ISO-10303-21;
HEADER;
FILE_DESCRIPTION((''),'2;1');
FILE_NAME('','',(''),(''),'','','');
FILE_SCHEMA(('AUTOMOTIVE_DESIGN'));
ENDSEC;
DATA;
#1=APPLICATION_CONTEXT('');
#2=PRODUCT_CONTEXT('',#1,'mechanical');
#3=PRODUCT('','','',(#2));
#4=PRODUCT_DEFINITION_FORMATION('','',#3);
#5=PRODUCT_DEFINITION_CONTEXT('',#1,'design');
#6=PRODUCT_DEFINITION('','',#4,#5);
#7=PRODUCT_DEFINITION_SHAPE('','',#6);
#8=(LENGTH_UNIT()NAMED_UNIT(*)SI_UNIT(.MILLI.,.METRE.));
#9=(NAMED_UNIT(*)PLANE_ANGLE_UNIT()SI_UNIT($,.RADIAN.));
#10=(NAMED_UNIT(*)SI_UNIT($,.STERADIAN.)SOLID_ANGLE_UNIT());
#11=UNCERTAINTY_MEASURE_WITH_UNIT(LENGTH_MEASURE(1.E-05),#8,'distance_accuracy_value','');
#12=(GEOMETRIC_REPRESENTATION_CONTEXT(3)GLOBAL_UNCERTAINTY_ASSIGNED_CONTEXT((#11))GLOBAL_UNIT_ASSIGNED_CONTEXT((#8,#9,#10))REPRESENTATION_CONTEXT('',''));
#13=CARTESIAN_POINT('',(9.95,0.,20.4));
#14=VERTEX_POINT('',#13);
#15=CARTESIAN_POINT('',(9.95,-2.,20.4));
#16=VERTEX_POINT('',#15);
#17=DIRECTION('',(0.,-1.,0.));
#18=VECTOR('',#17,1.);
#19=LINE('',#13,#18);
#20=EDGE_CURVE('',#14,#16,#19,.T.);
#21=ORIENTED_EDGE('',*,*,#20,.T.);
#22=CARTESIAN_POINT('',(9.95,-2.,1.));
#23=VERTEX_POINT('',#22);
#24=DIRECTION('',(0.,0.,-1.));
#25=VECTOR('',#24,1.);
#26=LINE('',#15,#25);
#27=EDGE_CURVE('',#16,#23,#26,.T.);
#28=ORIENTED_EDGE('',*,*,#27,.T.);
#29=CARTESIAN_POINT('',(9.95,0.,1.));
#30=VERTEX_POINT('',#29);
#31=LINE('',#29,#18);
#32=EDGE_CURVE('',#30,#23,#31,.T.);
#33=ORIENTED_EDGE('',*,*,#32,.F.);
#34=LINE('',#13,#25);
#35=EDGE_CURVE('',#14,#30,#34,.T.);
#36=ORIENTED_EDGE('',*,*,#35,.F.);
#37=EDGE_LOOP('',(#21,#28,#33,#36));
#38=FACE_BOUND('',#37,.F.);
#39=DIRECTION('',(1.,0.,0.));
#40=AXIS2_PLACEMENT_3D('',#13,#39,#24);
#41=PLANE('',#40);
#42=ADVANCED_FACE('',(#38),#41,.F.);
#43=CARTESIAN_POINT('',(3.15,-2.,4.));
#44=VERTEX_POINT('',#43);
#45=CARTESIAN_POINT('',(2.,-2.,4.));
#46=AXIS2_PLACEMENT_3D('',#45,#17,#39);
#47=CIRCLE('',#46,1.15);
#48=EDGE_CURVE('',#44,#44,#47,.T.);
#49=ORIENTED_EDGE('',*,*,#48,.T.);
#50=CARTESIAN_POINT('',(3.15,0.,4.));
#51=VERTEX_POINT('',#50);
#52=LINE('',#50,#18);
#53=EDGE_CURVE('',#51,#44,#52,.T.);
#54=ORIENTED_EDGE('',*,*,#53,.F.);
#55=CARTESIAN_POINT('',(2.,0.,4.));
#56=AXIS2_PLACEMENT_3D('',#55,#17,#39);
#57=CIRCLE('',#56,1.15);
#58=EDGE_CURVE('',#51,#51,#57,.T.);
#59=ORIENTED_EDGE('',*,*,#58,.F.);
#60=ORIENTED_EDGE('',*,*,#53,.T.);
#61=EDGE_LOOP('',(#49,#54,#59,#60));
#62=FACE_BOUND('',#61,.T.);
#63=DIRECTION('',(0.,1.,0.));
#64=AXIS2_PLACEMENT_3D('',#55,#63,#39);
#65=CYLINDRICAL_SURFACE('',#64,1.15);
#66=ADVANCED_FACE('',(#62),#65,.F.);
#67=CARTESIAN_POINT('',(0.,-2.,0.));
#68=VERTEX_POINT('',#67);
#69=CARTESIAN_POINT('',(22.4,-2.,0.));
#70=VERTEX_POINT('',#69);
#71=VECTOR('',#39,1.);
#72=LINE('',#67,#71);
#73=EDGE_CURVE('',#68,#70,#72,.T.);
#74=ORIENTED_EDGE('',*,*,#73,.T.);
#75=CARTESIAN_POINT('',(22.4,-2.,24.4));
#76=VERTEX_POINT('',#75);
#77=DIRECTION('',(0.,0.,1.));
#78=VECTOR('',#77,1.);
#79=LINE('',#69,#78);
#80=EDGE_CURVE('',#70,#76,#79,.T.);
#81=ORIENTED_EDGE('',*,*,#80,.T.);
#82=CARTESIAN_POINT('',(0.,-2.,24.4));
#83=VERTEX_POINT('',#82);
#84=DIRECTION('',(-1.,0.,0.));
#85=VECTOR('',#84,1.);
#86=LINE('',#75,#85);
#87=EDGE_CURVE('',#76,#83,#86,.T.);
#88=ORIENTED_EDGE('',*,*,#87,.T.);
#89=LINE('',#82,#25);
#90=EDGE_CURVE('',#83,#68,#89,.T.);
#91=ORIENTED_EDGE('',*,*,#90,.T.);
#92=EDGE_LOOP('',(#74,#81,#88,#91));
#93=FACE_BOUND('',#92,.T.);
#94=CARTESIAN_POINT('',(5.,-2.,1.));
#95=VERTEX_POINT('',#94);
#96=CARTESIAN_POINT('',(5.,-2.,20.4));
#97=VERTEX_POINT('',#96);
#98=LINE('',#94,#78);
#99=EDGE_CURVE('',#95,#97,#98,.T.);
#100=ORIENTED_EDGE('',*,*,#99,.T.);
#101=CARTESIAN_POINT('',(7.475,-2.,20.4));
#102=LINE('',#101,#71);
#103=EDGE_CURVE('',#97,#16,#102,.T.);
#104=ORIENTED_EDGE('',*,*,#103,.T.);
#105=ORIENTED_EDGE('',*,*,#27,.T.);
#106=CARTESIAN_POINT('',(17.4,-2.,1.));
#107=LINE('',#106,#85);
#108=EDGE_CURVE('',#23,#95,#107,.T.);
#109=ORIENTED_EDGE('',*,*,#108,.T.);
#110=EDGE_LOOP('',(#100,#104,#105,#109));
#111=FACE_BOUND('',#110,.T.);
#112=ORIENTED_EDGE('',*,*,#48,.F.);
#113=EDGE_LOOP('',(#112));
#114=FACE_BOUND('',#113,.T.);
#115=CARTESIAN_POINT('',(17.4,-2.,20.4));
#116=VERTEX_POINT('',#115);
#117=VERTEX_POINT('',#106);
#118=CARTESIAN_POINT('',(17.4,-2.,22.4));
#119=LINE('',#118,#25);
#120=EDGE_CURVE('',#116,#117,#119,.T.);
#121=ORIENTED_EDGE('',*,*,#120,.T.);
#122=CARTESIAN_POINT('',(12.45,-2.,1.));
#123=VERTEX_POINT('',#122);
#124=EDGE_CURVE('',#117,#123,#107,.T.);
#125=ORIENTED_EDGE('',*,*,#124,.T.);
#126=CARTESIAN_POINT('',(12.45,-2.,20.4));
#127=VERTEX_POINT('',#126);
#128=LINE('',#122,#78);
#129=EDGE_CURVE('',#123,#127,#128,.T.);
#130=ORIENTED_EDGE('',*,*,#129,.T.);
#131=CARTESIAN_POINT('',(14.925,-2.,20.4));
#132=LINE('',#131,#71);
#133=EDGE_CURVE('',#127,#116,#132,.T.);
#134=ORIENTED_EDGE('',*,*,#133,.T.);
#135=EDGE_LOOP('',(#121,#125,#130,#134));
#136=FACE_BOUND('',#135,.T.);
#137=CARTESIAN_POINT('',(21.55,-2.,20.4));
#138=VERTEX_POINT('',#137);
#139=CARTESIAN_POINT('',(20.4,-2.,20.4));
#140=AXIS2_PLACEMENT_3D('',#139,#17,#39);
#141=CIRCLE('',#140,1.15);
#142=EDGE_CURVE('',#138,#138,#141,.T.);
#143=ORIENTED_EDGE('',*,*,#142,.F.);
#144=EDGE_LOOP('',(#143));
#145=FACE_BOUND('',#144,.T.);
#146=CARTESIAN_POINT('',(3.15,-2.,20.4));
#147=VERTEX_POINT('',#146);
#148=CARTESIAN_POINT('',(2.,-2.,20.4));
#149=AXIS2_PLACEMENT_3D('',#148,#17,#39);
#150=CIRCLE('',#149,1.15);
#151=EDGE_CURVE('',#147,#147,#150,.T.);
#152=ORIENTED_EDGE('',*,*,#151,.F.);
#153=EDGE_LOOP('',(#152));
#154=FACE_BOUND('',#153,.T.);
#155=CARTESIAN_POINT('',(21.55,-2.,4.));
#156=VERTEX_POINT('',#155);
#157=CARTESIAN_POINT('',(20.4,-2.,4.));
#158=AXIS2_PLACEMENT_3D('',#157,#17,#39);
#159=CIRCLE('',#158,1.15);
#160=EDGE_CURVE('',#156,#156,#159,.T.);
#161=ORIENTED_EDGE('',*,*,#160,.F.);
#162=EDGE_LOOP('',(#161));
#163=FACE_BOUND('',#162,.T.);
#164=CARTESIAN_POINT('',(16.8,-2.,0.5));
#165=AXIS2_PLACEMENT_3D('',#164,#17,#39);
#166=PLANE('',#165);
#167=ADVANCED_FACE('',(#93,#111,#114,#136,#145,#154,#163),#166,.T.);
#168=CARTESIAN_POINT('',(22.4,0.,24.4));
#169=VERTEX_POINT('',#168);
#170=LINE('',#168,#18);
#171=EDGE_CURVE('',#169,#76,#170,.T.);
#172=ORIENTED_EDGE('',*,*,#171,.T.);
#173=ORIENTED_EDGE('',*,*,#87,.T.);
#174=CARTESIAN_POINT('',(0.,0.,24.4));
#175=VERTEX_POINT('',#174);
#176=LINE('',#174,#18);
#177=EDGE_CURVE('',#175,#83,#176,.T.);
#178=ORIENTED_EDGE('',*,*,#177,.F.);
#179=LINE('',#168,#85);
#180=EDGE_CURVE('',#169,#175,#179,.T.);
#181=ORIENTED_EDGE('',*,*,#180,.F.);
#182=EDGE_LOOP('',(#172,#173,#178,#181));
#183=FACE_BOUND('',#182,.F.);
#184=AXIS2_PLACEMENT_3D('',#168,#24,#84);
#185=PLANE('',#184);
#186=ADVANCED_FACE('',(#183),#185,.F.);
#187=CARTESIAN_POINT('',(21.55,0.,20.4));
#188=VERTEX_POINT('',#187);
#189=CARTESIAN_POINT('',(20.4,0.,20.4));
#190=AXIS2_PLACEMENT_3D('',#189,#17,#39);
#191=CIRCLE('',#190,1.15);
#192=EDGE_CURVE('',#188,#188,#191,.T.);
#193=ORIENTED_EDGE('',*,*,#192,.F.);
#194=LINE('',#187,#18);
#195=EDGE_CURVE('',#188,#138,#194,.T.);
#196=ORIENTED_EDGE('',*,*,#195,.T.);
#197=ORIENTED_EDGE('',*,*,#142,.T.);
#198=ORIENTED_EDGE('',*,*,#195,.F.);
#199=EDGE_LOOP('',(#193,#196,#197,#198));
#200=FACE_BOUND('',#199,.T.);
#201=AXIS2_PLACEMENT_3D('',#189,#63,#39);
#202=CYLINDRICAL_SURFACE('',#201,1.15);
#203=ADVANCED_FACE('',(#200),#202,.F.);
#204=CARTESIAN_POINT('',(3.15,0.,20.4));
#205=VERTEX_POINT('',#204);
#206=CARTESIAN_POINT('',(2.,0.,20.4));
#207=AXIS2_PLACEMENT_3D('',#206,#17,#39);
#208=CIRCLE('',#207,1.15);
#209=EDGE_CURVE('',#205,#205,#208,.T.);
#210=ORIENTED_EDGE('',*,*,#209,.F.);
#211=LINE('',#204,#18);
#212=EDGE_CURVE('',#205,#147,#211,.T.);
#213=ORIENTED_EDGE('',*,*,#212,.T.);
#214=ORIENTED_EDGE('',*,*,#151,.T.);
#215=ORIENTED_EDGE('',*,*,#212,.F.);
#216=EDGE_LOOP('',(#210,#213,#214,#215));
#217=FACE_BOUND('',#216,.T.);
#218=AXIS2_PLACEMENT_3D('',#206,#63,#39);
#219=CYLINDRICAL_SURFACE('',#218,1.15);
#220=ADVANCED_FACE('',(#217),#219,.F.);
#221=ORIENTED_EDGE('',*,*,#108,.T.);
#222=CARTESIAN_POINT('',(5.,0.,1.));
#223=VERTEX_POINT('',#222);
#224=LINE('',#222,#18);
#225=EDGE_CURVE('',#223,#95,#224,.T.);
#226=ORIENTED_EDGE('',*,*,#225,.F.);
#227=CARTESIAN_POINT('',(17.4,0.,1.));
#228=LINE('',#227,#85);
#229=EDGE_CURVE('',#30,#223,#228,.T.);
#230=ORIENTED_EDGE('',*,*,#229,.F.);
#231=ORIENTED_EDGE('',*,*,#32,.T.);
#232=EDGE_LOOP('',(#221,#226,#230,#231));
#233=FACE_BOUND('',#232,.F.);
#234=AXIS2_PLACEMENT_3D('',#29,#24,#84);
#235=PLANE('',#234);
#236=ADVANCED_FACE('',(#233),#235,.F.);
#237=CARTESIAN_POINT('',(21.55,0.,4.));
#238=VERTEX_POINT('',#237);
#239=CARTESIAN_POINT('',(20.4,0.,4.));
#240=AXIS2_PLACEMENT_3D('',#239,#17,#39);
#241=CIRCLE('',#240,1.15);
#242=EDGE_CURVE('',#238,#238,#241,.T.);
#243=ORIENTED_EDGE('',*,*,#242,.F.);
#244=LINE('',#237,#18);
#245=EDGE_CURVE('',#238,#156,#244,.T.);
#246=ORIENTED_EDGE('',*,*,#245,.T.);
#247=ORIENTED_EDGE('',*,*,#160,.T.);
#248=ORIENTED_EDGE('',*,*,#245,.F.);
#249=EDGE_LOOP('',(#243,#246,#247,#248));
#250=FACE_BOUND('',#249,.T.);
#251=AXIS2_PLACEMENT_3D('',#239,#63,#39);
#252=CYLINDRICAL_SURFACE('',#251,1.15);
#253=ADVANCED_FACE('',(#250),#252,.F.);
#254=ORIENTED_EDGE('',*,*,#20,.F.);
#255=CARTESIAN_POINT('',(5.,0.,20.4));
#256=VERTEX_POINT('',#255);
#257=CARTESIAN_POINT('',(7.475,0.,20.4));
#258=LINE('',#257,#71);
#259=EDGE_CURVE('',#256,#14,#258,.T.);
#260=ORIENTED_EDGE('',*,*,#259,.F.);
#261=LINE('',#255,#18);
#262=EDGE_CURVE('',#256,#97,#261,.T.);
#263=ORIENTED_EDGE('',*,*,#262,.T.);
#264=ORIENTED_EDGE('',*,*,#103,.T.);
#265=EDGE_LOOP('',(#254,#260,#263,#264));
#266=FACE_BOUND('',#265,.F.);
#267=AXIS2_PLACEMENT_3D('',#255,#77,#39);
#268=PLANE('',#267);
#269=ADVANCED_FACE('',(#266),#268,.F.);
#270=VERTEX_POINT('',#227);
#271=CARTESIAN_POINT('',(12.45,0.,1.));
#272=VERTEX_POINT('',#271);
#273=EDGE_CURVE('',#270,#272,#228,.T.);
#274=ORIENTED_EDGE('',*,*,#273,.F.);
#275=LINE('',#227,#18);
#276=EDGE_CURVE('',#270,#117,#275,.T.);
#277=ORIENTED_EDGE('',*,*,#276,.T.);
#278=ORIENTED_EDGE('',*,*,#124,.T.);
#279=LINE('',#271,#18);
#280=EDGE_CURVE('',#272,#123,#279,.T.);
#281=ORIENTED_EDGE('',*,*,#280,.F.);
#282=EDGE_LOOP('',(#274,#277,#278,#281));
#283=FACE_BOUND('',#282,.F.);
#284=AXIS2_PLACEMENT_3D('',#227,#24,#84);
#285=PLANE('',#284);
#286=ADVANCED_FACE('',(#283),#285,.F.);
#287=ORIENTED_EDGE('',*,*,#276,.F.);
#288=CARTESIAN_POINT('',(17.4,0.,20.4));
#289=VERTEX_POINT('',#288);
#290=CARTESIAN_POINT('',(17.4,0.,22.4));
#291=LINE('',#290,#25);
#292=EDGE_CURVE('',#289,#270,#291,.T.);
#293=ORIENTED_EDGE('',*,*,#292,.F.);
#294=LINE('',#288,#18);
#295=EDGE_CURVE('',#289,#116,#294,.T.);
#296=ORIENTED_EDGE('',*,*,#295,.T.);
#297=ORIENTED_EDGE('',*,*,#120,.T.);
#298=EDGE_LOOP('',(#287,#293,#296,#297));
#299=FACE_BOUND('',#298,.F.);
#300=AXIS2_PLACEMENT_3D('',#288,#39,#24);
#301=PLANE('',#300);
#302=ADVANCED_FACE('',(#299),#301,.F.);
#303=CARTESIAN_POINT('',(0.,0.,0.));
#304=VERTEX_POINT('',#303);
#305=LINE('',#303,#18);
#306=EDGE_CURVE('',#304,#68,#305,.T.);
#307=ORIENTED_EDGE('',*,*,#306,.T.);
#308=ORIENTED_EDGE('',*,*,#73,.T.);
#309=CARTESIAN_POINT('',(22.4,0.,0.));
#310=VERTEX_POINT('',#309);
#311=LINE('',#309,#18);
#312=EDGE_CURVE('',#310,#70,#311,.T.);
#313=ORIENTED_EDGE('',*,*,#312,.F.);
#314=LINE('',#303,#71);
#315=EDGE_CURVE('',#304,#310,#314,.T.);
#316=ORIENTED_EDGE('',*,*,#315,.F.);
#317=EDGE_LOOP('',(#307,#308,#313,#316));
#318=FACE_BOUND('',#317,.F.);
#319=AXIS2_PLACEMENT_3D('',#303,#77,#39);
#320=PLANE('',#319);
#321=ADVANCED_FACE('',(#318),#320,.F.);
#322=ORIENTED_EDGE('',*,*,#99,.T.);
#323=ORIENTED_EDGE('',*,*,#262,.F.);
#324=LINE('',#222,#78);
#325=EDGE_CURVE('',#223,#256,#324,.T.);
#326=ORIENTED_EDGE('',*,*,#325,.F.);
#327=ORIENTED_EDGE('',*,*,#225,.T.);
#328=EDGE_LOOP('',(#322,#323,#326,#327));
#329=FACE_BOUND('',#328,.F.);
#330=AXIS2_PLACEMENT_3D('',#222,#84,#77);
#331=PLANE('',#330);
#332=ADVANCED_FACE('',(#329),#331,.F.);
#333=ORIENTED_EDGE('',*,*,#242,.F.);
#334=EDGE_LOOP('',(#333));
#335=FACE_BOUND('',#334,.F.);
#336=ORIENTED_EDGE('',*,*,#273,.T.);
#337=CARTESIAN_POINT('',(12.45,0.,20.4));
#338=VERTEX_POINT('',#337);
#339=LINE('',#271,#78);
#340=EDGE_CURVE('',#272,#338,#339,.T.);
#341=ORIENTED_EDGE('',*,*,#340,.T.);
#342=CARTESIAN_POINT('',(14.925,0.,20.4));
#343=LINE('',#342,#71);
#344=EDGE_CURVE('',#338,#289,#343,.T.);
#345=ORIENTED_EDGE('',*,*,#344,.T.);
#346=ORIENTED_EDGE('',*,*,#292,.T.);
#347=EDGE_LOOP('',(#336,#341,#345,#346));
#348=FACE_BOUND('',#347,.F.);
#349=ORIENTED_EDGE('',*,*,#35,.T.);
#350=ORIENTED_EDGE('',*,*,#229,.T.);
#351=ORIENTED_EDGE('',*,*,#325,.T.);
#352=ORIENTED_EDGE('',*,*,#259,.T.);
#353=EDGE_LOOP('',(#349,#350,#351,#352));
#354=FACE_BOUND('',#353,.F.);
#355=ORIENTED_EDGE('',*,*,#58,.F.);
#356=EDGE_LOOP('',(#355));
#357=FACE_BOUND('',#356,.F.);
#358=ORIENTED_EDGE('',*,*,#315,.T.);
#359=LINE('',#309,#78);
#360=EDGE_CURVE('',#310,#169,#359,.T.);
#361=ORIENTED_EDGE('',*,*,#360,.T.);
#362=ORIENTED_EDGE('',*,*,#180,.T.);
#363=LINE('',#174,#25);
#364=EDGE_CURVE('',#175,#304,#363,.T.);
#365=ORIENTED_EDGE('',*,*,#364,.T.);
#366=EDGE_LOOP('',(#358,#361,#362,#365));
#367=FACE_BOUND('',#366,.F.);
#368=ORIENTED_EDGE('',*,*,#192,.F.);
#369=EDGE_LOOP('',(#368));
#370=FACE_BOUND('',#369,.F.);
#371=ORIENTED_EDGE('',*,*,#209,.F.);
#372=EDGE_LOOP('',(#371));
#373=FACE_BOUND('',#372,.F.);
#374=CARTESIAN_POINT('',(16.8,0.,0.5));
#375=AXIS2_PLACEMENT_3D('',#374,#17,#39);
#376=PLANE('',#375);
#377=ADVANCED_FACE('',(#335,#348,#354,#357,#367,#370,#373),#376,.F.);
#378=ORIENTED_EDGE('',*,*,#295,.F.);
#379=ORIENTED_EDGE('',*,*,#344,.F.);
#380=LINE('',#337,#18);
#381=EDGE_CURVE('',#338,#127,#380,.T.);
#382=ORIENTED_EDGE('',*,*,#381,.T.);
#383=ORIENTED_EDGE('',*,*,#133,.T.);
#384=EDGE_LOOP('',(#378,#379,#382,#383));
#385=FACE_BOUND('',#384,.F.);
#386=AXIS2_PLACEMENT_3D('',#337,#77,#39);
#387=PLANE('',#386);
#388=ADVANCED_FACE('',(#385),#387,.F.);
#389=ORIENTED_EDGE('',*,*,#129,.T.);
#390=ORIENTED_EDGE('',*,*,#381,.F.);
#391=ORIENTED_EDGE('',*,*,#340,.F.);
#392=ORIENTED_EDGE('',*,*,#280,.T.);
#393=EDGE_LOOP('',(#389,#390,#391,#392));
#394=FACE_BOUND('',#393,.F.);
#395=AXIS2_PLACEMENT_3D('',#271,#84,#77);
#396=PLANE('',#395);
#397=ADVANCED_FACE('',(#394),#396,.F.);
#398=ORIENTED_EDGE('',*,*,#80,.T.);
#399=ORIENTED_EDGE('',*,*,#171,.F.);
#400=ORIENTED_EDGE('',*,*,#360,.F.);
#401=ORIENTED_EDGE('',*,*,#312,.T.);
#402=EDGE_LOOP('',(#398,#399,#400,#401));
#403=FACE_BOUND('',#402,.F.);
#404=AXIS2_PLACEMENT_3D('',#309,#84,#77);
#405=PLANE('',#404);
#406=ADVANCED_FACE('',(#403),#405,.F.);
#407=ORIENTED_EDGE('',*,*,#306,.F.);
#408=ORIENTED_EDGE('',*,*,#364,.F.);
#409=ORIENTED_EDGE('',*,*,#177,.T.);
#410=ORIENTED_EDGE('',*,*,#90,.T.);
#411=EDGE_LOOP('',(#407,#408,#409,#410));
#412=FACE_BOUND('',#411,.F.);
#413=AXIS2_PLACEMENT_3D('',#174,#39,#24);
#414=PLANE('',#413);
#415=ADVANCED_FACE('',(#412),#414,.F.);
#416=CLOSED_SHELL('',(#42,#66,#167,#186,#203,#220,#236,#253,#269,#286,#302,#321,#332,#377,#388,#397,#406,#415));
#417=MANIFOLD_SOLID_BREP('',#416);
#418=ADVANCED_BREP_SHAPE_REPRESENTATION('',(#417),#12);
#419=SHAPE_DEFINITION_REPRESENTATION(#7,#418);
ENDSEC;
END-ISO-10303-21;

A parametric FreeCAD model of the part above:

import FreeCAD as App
import Part
import Sketcher

V = App.Vector

doc = App.newDocument("Part")
body = doc.addObject("PartDesign::Body", "Body")

# Sketch on XZ plane
sketch1 = doc.addObject("Sketcher::SketchObject", "Sketch")
body.addObject(sketch1)
sketch1.AttachmentSupport = (doc.XZ_Plane, [""])
sketch1.MapMode = "FlatFace"
sketch1.addGeometry(Part.LineSegment(V(22.4, 24.4, 0), V(0, 24.4, 0)), False)
sketch1.addGeometry(Part.LineSegment(V(0, 24.4, 0), V(0, 0, 0)), False)
sketch1.addGeometry(Part.LineSegment(V(0, 0, 0), V(22.4, 0, 0)), False)
sketch1.addGeometry(Part.LineSegment(V(22.4, 0, 0), V(22.4, 24.4, 0)), False)
sketch1.addGeometry(Part.Circle(V(2, 4, 0), V(0, 0, 1), 1.1), False)
sketch1.addGeometry(Part.LineSegment(V(5, 20.4, 0), V(9.9, 20.4, 0)), False)
sketch1.addGeometry(Part.LineSegment(V(9.9, 20.4, 0), V(9.9, 1, 0)), False)
sketch1.addGeometry(Part.LineSegment(V(9.9, 1, 0), V(5, 1, 0)), False)
sketch1.addGeometry(Part.LineSegment(V(5, 1, 0), V(5, 20.4, 0)), False)
sketch1.addGeometry(Part.Circle(V(20.4, 4, 0), V(0, 0, 1), 1.1), False)
sketch1.addGeometry(Part.Circle(V(2, 20.4, 0), V(0, 0, 1), 1.1), False)
sketch1.addGeometry(Part.LineSegment(V(12.4, 1, 0), V(12.4, 20.4, 0)), False)
sketch1.addGeometry(Part.LineSegment(V(12.4, 20.4, 0), V(17.4, 20.4, 0)), False)
sketch1.addGeometry(Part.LineSegment(V(17.4, 20.4, 0), V(17.4, 1, 0)), False)
sketch1.addGeometry(Part.LineSegment(V(17.4, 1, 0), V(12.4, 1, 0)), False)
sketch1.addGeometry(Part.Circle(V(20.4, 20.4, 0), V(0, 0, 1), 1.1), False)
sketch1.addConstraint(Sketcher.Constraint("Coincident", 0, 2, 1, 1))
sketch1.addConstraint(Sketcher.Constraint("Coincident", 1, 2, 2, 1))
sketch1.addConstraint(Sketcher.Constraint("Coincident", 2, 2, 3, 1))
sketch1.addConstraint(Sketcher.Constraint("Coincident", 3, 2, 0, 1))
sketch1.addConstraint(Sketcher.Constraint("Coincident", 5, 2, 6, 1))
sketch1.addConstraint(Sketcher.Constraint("Coincident", 6, 2, 7, 1))
sketch1.addConstraint(Sketcher.Constraint("Coincident", 7, 2, 8, 1))
sketch1.addConstraint(Sketcher.Constraint("Coincident", 8, 2, 5, 1))
sketch1.addConstraint(Sketcher.Constraint("Coincident", 11, 2, 12, 1))
sketch1.addConstraint(Sketcher.Constraint("Coincident", 12, 2, 13, 1))
sketch1.addConstraint(Sketcher.Constraint("Coincident", 13, 2, 14, 1))
sketch1.addConstraint(Sketcher.Constraint("Coincident", 14, 2, 11, 1))
sketch1.addConstraint(Sketcher.Constraint("Horizontal", 0))
sketch1.addConstraint(Sketcher.Constraint("Vertical", 1))
sketch1.addConstraint(Sketcher.Constraint("Horizontal", 2))
sketch1.addConstraint(Sketcher.Constraint("Vertical", 3))
sketch1.addConstraint(Sketcher.Constraint("Horizontal", 5))
sketch1.addConstraint(Sketcher.Constraint("Vertical", 6))
sketch1.addConstraint(Sketcher.Constraint("Horizontal", 7))
sketch1.addConstraint(Sketcher.Constraint("Vertical", 8))
sketch1.addConstraint(Sketcher.Constraint("Vertical", 11))
sketch1.addConstraint(Sketcher.Constraint("Horizontal", 12))
sketch1.addConstraint(Sketcher.Constraint("Vertical", 13))
sketch1.addConstraint(Sketcher.Constraint("Horizontal", 14))
sketch1.addConstraint(Sketcher.Constraint("Coincident", 1, 2, -1, 1))
sketch1.addConstraint(Sketcher.Constraint("Equal", 4, 9))
sketch1.addConstraint(Sketcher.Constraint("Equal", 9, 10))
sketch1.addConstraint(Sketcher.Constraint("Equal", 10, 15))
sketch1.addConstraint(Sketcher.Constraint("Horizontal", 4, 3, 9, 3))
sketch1.addConstraint(Sketcher.Constraint("Horizontal", 10, 3, 15, 3))
sketch1.addConstraint(Sketcher.Constraint("Horizontal", 15, 3, 5, 2))
sketch1.addConstraint(Sketcher.Constraint("Horizontal", 8, 2, 11, 2))
sketch1.addConstraint(Sketcher.Constraint("Horizontal", 7, 2, 13, 2))
sketch1.addConstraint(Sketcher.Constraint("Vertical", 4, 3, 10, 3))
sketch1.addConstraint(Sketcher.Constraint("Vertical", 9, 3, 15, 3))
sketch1.addConstraint(Sketcher.Constraint("Equal", 7, 12))
sketch1.addConstraint(Sketcher.Constraint("Diameter", 4, 2.3))
sketch1.addConstraint(Sketcher.Constraint("DistanceX", 0, 2, 0, 1, 22.4))
sketch1.addConstraint(Sketcher.Constraint("DistanceY", 1, 2, 1, 1, 24.4))
sketch1.addConstraint(Sketcher.Constraint("DistanceY", 6, 2, 6, 1, 19.4))
sketch1.addConstraint(Sketcher.Constraint("DistanceX", -1, 1, 4, 3, 2.0))
sketch1.addConstraint(Sketcher.Constraint("DistanceY", -1, 1, 4, 3, 4.0))
sketch1.addConstraint(Sketcher.Constraint("DistanceY", -1, 1, 6, 2, 1.0))
sketch1.addConstraint(Sketcher.Constraint("DistanceX", -1, 1, 7, 2, 5.0))
sketch1.addConstraint(Sketcher.Constraint("DistanceX", 9, 3, 2, 2, 2.0))
sketch1.addConstraint(Sketcher.Constraint("DistanceX", 12, 2, 15, 3, 3.0))
sketch1.addConstraint(Sketcher.Constraint("DistanceX", 5, 1, 5, 2, 4.95))
pad1 = doc.addObject("PartDesign::Pad", "Pad")
body.addObject(pad1)
pad1.Profile = sketch1
pad1.Length = 2

doc.recompute()
